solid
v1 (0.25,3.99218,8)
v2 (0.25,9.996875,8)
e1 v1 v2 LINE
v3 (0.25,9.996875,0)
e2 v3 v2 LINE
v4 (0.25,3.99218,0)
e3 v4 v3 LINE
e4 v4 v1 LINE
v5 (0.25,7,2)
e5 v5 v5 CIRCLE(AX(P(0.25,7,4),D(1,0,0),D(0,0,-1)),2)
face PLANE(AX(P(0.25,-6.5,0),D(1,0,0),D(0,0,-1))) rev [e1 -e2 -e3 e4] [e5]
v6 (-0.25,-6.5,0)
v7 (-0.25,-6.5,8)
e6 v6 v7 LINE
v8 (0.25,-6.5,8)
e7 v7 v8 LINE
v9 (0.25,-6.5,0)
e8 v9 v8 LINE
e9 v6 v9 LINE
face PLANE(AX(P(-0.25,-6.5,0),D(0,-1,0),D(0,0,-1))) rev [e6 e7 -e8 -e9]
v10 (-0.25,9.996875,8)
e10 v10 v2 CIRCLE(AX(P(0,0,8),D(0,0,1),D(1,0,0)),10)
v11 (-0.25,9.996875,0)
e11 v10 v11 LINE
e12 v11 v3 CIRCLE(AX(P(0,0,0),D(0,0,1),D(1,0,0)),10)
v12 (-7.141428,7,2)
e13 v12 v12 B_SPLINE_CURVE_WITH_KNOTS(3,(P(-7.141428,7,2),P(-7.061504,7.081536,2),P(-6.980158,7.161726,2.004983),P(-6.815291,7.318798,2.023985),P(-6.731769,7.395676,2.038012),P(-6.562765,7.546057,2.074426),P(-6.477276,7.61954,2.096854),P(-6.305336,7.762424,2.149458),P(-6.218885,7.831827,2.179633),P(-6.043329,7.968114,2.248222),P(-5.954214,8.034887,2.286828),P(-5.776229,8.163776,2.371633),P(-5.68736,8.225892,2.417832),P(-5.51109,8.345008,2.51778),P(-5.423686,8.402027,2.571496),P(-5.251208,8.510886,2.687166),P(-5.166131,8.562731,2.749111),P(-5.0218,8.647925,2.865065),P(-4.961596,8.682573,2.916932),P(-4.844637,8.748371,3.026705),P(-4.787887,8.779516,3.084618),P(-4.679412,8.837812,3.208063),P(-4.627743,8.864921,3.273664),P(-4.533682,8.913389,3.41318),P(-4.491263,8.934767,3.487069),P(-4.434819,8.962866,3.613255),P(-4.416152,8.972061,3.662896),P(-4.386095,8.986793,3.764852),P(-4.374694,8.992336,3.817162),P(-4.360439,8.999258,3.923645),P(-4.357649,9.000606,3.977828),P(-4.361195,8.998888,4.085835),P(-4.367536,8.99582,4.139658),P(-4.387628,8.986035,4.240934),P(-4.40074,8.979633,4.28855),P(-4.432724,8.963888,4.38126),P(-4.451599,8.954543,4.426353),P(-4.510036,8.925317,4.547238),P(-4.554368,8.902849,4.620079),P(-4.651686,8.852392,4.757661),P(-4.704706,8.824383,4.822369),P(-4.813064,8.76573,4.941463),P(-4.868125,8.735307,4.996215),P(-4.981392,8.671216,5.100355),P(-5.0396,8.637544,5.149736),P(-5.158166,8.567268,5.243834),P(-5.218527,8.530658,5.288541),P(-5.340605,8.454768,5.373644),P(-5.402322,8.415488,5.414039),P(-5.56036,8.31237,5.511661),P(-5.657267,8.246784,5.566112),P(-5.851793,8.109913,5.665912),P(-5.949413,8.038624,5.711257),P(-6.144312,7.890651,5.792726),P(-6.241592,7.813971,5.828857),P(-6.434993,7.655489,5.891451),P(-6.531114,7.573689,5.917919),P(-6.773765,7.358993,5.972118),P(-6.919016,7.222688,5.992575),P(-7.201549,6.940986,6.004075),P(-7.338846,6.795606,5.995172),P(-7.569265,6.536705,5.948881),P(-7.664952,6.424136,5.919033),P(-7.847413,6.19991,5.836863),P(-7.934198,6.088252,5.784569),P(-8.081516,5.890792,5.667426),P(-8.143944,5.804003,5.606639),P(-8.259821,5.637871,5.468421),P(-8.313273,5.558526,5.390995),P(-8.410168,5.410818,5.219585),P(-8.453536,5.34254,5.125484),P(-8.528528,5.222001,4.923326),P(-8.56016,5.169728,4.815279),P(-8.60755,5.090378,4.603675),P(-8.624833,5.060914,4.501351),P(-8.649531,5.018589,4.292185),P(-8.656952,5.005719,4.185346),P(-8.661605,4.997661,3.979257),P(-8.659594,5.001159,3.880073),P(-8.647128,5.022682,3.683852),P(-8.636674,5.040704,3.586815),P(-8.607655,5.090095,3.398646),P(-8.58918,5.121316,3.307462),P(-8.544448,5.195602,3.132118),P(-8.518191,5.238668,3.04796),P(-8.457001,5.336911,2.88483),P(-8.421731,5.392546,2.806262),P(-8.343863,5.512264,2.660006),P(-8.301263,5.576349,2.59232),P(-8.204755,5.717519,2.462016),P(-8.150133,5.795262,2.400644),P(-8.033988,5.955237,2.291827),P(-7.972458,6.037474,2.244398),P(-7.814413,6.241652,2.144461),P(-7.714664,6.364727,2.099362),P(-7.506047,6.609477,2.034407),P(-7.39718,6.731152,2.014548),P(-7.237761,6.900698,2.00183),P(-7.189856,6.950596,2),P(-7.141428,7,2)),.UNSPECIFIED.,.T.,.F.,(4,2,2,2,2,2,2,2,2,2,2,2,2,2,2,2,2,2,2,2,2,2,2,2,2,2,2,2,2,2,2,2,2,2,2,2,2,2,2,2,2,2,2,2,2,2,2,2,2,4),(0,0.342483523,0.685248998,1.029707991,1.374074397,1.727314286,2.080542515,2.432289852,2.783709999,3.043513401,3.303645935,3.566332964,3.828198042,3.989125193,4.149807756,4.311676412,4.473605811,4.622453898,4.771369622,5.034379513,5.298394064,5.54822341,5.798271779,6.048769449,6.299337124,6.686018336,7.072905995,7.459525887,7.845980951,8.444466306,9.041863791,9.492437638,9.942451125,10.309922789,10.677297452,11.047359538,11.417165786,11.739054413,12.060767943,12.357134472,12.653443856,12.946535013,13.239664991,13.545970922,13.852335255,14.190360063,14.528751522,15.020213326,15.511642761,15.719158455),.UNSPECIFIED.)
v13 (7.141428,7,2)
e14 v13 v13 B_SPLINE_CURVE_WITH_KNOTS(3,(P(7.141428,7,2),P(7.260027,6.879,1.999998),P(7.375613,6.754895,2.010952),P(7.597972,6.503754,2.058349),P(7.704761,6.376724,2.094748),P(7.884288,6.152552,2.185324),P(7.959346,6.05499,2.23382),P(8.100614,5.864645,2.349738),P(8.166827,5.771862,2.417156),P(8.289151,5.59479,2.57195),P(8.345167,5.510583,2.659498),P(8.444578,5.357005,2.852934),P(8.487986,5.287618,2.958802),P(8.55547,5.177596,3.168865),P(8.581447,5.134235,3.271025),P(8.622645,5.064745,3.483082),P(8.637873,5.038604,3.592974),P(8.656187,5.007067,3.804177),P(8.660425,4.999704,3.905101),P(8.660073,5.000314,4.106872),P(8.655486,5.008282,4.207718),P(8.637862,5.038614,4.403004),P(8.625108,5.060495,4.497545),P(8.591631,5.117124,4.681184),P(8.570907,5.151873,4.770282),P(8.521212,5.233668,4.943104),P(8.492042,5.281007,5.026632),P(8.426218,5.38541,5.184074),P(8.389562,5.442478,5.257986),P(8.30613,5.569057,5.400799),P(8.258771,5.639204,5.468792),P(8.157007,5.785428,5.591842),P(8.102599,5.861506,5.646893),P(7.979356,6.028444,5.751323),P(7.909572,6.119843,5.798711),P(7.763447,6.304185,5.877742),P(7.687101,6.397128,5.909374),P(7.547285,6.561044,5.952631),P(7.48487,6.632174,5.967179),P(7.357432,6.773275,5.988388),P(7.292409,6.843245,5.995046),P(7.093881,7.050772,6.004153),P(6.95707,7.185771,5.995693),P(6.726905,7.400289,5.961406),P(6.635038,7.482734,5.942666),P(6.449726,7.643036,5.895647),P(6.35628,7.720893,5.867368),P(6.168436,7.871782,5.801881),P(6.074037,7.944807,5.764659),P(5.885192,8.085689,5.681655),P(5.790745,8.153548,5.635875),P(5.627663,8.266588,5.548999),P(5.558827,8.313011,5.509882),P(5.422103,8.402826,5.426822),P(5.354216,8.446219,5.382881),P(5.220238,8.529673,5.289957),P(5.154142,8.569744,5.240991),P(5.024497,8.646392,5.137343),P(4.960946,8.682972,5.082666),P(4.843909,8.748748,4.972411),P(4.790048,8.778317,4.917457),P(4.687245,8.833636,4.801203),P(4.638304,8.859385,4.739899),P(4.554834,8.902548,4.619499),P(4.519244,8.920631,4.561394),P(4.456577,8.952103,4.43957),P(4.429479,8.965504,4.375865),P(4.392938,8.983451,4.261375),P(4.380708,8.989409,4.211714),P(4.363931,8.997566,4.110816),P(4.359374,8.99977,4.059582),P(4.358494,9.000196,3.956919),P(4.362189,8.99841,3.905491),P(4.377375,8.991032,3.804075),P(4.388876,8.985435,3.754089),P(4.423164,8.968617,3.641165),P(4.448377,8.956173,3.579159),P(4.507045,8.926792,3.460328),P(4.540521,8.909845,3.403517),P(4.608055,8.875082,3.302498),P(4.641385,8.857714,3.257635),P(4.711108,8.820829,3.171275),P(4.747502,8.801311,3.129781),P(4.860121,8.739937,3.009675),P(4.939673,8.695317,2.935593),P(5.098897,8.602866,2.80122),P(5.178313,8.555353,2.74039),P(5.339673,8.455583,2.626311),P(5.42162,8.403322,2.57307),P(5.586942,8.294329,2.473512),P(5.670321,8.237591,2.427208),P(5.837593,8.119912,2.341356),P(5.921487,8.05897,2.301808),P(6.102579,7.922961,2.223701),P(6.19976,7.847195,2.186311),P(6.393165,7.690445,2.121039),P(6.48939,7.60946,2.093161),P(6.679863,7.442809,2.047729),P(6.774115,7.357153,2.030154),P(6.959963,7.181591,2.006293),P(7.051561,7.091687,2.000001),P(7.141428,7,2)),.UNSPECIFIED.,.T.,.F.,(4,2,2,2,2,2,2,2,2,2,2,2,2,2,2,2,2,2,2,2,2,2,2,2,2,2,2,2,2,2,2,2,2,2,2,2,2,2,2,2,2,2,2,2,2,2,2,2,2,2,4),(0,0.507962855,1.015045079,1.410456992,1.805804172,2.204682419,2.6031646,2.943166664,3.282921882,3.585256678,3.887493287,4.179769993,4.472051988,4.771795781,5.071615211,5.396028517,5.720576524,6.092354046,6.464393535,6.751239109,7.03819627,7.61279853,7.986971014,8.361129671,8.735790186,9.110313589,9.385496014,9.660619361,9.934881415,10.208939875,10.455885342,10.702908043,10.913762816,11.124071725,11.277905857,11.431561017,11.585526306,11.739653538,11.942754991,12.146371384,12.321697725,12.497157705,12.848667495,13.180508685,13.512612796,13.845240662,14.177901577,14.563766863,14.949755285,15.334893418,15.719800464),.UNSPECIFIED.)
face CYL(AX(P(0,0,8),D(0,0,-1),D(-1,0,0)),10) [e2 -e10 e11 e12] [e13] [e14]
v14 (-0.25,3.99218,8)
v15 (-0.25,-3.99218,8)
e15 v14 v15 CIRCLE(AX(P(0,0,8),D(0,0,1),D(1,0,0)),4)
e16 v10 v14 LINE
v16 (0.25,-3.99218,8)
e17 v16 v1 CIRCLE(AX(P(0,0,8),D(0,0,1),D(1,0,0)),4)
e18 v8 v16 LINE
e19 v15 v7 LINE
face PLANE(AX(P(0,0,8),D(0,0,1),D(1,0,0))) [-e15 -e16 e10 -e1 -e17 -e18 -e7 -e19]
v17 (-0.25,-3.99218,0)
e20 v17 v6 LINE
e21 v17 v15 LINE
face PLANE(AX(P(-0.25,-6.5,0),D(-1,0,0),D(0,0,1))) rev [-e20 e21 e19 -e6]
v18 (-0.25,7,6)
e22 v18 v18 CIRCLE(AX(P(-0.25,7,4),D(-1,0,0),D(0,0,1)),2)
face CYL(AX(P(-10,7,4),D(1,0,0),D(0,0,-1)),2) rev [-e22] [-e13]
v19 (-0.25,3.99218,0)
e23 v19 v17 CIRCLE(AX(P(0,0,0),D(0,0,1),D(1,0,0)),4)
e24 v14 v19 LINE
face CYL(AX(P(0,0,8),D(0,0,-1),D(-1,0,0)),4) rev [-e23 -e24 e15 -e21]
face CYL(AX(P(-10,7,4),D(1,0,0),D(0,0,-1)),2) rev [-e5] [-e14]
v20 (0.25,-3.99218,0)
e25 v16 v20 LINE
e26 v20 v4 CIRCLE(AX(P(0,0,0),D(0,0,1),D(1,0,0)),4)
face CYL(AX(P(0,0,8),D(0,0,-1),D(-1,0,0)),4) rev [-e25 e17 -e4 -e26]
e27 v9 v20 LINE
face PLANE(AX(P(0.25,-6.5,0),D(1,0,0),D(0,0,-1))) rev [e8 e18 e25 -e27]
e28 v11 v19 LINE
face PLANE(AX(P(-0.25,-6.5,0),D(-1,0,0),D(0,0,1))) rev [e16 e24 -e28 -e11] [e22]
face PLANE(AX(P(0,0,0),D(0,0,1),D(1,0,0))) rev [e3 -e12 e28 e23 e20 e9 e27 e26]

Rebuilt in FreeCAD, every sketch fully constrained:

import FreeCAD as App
import Part
import Sketcher
from FreeCAD import Vector

doc = App.newDocument("Part")
body = doc.addObject("PartDesign::Body", "Body")

# Sketch on XY plane
sketch1 = doc.addObject("Sketcher::SketchObject", "Sketch")
body.addObject(sketch1)
sketch1.AttachmentSupport = (doc.XY_Plane, [""])
sketch1.MapMode = "FlatFace"
sketch1.addGeometry(Part.Circle(Vector(0, 0, 0), Vector(0, 0, 1), 10), False)
sketch1.addGeometry(Part.Circle(Vector(0, 0, 0), Vector(0, 0, 1), 4), False)
sketch1.addConstraint(Sketcher.Constraint("Coincident", 0, 3, -1, 1))
sketch1.addConstraint(Sketcher.Constraint("Coincident", 1, 3, -1, 1))
sketch1.addConstraint(Sketcher.Constraint("Diameter", 0, 20.0))
sketch1.addConstraint(Sketcher.Constraint("Diameter", 1, 8.0))
pad1 = doc.addObject("PartDesign::Pad", "Pad")
body.addObject(pad1)
pad1.Profile = sketch1
pad1.Length = 8

# Sketch on XY plane
sketch2 = doc.addObject("Sketcher::SketchObject", "Sketch001")
body.addObject(sketch2)
sketch2.AttachmentSupport = (doc.XY_Plane, [""])
sketch2.MapMode = "FlatFace"
sketch2.AttachmentOffset = App.Placement(Vector(0, 0, 8), App.Rotation())
sketch2.addGeometry(Part.LineSegment(Vector(-0.25, 10.5, 0), Vector(-0.25, -6.5, 0)), False)
sketch2.addGeometry(Part.LineSegment(Vector(-0.25, -6.5, 0), Vector(0.25, -6.5, 0)), False)
sketch2.addGeometry(Part.LineSegment(Vector(0.25, -6.5, 0), Vector(0.25, 10.5, 0)), False)
sketch2.addGeometry(Part.LineSegment(Vector(0.25, 10.5, 0), Vector(-0.25, 10.5, 0)), False)
sketch2.addConstraint(Sketcher.Constraint("Coincident", 0, 2, 1, 1))
sketch2.addConstraint(Sketcher.Constraint("Coincident", 1, 2, 2, 1))
sketch2.addConstraint(Sketcher.Constraint("Coincident", 2, 2, 3, 1))
sketch2.addConstraint(Sketcher.Constraint("Coincident", 3, 2, 0, 1))
sketch2.addConstraint(Sketcher.Constraint("Vertical", 0))
sketch2.addConstraint(Sketcher.Constraint("Horizontal", 1))
sketch2.addConstraint(Sketcher.Constraint("Vertical", 2))
sketch2.addConstraint(Sketcher.Constraint("Horizontal", 3))
sketch2.addConstraint(Sketcher.Constraint("DistanceY", 0, 2, 0, 1, 17.0))
sketch2.addConstraint(Sketcher.Constraint("DistanceX", 1, 1, 1, 2, 0.5))
sketch2.addConstraint(Sketcher.Constraint("DistanceY", 0, 2, -1, 1, 6.5))
sketch2.addConstraint(Sketcher.Constraint("DistanceX", 0, 2, -1, 1, 0.25))
pocket1 = doc.addObject("PartDesign::Pocket", "Pocket")
body.addObject(pocket1)
pocket1.Profile = sketch2
pocket1.Length = 8

# Sketch on YZ plane
sketch3 = doc.addObject("Sketcher::SketchObject", "Sketch002")
body.addObject(sketch3)
sketch3.AttachmentSupport = (doc.YZ_Plane, [""])
sketch3.MapMode = "FlatFace"
sketch3.addGeometry(Part.Circle(Vector(7, 4, 0), Vector(0, 0, 1), 2), False)
sketch3.addConstraint(Sketcher.Constraint("Diameter", 0, 4.0))
sketch3.addConstraint(Sketcher.Constraint("DistanceX", -1, 1, 0, 3, 7.0))
sketch3.addConstraint(Sketcher.Constraint("DistanceY", -1, 1, 0, 3, 4.0))
pocket2 = doc.addObject("PartDesign::Pocket", "Pocket001")
body.addObject(pocket2)
pocket2.Profile = sketch3
pocket2.Type = "ThroughAll"
pocket2.Midplane = True

doc.recompute()
